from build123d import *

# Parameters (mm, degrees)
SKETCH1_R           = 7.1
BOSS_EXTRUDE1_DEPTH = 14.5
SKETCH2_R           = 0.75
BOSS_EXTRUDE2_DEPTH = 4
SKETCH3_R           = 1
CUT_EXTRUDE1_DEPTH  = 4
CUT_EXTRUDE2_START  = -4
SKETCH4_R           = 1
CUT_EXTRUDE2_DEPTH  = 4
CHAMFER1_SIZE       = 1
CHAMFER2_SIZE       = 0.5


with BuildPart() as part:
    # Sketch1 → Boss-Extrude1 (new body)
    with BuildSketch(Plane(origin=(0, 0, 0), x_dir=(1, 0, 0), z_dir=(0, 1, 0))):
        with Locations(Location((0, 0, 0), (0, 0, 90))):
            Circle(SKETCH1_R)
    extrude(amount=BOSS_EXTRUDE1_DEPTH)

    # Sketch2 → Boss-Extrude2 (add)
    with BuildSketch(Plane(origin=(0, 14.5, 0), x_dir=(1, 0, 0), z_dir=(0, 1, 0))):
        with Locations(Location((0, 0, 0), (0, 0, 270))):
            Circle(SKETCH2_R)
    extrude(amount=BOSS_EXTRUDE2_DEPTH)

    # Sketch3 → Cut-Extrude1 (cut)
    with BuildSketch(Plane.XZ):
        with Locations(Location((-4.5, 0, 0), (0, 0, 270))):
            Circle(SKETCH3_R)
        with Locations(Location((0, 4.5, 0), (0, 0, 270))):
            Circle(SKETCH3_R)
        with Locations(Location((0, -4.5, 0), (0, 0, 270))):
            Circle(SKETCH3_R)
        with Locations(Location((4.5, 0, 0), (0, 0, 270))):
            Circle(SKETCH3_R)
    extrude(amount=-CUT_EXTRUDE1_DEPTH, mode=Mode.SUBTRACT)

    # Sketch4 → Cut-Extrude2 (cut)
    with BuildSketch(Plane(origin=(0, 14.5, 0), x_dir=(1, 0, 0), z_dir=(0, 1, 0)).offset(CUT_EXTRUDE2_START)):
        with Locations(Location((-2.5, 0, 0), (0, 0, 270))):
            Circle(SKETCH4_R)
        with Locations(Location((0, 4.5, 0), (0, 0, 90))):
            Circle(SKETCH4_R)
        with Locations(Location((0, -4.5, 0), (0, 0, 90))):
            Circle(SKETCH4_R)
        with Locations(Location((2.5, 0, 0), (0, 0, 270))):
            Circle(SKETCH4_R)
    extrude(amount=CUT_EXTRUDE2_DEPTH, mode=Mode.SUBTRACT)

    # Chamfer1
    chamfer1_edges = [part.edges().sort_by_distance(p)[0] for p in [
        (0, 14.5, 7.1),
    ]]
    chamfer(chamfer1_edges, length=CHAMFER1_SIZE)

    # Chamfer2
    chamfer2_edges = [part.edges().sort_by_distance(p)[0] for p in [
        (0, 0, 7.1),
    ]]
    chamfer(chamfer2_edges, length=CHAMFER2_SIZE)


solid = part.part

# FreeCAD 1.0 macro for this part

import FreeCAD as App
import Part
import Sketcher
Q = App.Units.Quantity


def edges_at(feature, points):
    """Names of the edges that pass closest to the given points."""
    edges = feature.Shape.Edges
    near = lambda p: min(range(len(edges)), key=lambda i: edges[i].distToShape(Part.Vertex(*p))[0])
    return sorted({f"Edge{near(p) + 1}" for p in points})

doc = App.newDocument("Part")
body = doc.addObject("PartDesign::Body", "Body")

# Sketch on XZ plane
sketch1 = doc.addObject("Sketcher::SketchObject", "Sketch")
body.addObject(sketch1)
sketch1.AttachmentSupport = (doc.XZ_Plane, [""])
sketch1.MapMode = "FlatFace"
sketch1.addGeometry(Part.Circle(App.Vector(0, 0, 0), App.Vector(0, 0, 1), 7), False)
sketch1.addConstraint([
    Sketcher.Constraint("Coincident", 0, 3, -1, 1),
    Sketcher.Constraint("Diameter", 0, Q("14.2 mm")),
])
pad1 = doc.addObject("PartDesign::Pad", "Pad")
body.addObject(pad1)
pad1.Profile = sketch1
pad1.Length = 14.5
pad1.Reversed = True

# Sketch on XZ plane
sketch2 = doc.addObject("Sketcher::SketchObject", "Sketch001")
body.addObject(sketch2)
sketch2.AttachmentSupport = (doc.XZ_Plane, [""])
sketch2.MapMode = "FlatFace"
sketch2.AttachmentOffset = App.Placement(App.Vector(0, 0, -14.5), App.Rotation())
sketch2.addGeometry(Part.Circle(App.Vector(0, 0, 0), App.Vector(0, 0, 1), 0.8), False)
sketch2.addConstraint([
    Sketcher.Constraint("Coincident", 0, 3, -1, 1),
    Sketcher.Constraint("Diameter", 0, Q("1.5 mm")),
])
pad2 = doc.addObject("PartDesign::Pad", "Pad001")
body.addObject(pad2)
pad2.Profile = sketch2
pad2.Length = 4
pad2.Reversed = True

# Sketch on XZ plane
sketch3 = doc.addObject("Sketcher::SketchObject", "Sketch002")
body.addObject(sketch3)
sketch3.AttachmentSupport = (doc.XZ_Plane, [""])
sketch3.MapMode = "FlatFace"
sketch3.addGeometry([
    Part.Circle(App.Vector(-4.5, 0, 0), App.Vector(0, 0, 1), 1),
    Part.Circle(App.Vector(0, 4.5, 0), App.Vector(0, 0, 1), 1),
    Part.Circle(App.Vector(0, -4.5, 0), App.Vector(0, 0, 1), 1),
    Part.Circle(App.Vector(4.5, 0, 0), App.Vector(0, 0, 1), 1),
], False)
sketch3.addConstraint([
    Sketcher.Constraint("Equal", 0, 1),
    Sketcher.Constraint("Equal", 1, 2),
    Sketcher.Constraint("Equal", 2, 3),
    Sketcher.Constraint("Symmetric", 1, 3, 2, 3, -1, 1),
    Sketcher.Constraint("Symmetric", 0, 3, 3, 3, -1, 1),
    Sketcher.Constraint("PointOnObject", 0, 3, -1),
    Sketcher.Constraint("PointOnObject", 1, 3, -2),
    Sketcher.Constraint("Diameter", 0, Q("2 mm")),
    Sketcher.Constraint("DistanceY", 2, 3, 1, 3, Q("9 mm")),
    Sketcher.Constraint("DistanceX", 0, 3, 3, 3, Q("9 mm")),
])
pocket1 = doc.addObject("PartDesign::Pocket", "Pocket")
body.addObject(pocket1)
pocket1.Profile = sketch3
pocket1.Length = 4

# Sketch on XZ plane
sketch4 = doc.addObject("Sketcher::SketchObject", "Sketch003")
body.addObject(sketch4)
sketch4.AttachmentSupport = (doc.XZ_Plane, [""])
sketch4.MapMode = "FlatFace"
sketch4.AttachmentOffset = App.Placement(App.Vector(0, 0, -10.5), App.Rotation())
sketch4.addGeometry([
    Part.Circle(App.Vector(-2.5, 0, 0), App.Vector(0, 0, 1), 1),
    Part.Circle(App.Vector(0, -4.5, 0), App.Vector(0, 0, 1), 1),
    Part.Circle(App.Vector(0, 4.5, 0), App.Vector(0, 0, 1), 1),
    Part.Circle(App.Vector(2.5, 0, 0), App.Vector(0, 0, 1), 1),
], False)
sketch4.addConstraint([
    Sketcher.Constraint("Equal", 0, 1),
    Sketcher.Constraint("Equal", 1, 2),
    Sketcher.Constraint("Equal", 2, 3),
    Sketcher.Constraint("Symmetric", 1, 3, 2, 3, -1, 1),
    Sketcher.Constraint("Symmetric", 0, 3, 3, 3, -1, 1),
    Sketcher.Constraint("PointOnObject", 0, 3, -1),
    Sketcher.Constraint("PointOnObject", 1, 3, -2),
    Sketcher.Constraint("Diameter", 0, Q("2 mm")),
    Sketcher.Constraint("DistanceY", 1, 3, 2, 3, Q("9 mm")),
    Sketcher.Constraint("DistanceX", 0, 3, 3, 3, Q("5 mm")),
])
pocket2 = doc.addObject("PartDesign::Pocket", "Pocket001")
body.addObject(pocket2)
pocket2.Profile = sketch4
pocket2.Length = 4
doc.recompute()

chamfer = doc.addObject("PartDesign::Chamfer", "Chamfer")
body.addObject(chamfer)
chamfer.Base = (pocket2, edges_at(pocket2, [(0, 14.5, 7.1)]))
chamfer.Size = 1
doc.recompute()

chamfer2 = doc.addObject("PartDesign::Chamfer", "Chamfer001")
body.addObject(chamfer2)
chamfer2.Base = (chamfer, edges_at(chamfer, [(0, 0, 7.1)]))
chamfer2.Size = 0.5

doc.recompute()
